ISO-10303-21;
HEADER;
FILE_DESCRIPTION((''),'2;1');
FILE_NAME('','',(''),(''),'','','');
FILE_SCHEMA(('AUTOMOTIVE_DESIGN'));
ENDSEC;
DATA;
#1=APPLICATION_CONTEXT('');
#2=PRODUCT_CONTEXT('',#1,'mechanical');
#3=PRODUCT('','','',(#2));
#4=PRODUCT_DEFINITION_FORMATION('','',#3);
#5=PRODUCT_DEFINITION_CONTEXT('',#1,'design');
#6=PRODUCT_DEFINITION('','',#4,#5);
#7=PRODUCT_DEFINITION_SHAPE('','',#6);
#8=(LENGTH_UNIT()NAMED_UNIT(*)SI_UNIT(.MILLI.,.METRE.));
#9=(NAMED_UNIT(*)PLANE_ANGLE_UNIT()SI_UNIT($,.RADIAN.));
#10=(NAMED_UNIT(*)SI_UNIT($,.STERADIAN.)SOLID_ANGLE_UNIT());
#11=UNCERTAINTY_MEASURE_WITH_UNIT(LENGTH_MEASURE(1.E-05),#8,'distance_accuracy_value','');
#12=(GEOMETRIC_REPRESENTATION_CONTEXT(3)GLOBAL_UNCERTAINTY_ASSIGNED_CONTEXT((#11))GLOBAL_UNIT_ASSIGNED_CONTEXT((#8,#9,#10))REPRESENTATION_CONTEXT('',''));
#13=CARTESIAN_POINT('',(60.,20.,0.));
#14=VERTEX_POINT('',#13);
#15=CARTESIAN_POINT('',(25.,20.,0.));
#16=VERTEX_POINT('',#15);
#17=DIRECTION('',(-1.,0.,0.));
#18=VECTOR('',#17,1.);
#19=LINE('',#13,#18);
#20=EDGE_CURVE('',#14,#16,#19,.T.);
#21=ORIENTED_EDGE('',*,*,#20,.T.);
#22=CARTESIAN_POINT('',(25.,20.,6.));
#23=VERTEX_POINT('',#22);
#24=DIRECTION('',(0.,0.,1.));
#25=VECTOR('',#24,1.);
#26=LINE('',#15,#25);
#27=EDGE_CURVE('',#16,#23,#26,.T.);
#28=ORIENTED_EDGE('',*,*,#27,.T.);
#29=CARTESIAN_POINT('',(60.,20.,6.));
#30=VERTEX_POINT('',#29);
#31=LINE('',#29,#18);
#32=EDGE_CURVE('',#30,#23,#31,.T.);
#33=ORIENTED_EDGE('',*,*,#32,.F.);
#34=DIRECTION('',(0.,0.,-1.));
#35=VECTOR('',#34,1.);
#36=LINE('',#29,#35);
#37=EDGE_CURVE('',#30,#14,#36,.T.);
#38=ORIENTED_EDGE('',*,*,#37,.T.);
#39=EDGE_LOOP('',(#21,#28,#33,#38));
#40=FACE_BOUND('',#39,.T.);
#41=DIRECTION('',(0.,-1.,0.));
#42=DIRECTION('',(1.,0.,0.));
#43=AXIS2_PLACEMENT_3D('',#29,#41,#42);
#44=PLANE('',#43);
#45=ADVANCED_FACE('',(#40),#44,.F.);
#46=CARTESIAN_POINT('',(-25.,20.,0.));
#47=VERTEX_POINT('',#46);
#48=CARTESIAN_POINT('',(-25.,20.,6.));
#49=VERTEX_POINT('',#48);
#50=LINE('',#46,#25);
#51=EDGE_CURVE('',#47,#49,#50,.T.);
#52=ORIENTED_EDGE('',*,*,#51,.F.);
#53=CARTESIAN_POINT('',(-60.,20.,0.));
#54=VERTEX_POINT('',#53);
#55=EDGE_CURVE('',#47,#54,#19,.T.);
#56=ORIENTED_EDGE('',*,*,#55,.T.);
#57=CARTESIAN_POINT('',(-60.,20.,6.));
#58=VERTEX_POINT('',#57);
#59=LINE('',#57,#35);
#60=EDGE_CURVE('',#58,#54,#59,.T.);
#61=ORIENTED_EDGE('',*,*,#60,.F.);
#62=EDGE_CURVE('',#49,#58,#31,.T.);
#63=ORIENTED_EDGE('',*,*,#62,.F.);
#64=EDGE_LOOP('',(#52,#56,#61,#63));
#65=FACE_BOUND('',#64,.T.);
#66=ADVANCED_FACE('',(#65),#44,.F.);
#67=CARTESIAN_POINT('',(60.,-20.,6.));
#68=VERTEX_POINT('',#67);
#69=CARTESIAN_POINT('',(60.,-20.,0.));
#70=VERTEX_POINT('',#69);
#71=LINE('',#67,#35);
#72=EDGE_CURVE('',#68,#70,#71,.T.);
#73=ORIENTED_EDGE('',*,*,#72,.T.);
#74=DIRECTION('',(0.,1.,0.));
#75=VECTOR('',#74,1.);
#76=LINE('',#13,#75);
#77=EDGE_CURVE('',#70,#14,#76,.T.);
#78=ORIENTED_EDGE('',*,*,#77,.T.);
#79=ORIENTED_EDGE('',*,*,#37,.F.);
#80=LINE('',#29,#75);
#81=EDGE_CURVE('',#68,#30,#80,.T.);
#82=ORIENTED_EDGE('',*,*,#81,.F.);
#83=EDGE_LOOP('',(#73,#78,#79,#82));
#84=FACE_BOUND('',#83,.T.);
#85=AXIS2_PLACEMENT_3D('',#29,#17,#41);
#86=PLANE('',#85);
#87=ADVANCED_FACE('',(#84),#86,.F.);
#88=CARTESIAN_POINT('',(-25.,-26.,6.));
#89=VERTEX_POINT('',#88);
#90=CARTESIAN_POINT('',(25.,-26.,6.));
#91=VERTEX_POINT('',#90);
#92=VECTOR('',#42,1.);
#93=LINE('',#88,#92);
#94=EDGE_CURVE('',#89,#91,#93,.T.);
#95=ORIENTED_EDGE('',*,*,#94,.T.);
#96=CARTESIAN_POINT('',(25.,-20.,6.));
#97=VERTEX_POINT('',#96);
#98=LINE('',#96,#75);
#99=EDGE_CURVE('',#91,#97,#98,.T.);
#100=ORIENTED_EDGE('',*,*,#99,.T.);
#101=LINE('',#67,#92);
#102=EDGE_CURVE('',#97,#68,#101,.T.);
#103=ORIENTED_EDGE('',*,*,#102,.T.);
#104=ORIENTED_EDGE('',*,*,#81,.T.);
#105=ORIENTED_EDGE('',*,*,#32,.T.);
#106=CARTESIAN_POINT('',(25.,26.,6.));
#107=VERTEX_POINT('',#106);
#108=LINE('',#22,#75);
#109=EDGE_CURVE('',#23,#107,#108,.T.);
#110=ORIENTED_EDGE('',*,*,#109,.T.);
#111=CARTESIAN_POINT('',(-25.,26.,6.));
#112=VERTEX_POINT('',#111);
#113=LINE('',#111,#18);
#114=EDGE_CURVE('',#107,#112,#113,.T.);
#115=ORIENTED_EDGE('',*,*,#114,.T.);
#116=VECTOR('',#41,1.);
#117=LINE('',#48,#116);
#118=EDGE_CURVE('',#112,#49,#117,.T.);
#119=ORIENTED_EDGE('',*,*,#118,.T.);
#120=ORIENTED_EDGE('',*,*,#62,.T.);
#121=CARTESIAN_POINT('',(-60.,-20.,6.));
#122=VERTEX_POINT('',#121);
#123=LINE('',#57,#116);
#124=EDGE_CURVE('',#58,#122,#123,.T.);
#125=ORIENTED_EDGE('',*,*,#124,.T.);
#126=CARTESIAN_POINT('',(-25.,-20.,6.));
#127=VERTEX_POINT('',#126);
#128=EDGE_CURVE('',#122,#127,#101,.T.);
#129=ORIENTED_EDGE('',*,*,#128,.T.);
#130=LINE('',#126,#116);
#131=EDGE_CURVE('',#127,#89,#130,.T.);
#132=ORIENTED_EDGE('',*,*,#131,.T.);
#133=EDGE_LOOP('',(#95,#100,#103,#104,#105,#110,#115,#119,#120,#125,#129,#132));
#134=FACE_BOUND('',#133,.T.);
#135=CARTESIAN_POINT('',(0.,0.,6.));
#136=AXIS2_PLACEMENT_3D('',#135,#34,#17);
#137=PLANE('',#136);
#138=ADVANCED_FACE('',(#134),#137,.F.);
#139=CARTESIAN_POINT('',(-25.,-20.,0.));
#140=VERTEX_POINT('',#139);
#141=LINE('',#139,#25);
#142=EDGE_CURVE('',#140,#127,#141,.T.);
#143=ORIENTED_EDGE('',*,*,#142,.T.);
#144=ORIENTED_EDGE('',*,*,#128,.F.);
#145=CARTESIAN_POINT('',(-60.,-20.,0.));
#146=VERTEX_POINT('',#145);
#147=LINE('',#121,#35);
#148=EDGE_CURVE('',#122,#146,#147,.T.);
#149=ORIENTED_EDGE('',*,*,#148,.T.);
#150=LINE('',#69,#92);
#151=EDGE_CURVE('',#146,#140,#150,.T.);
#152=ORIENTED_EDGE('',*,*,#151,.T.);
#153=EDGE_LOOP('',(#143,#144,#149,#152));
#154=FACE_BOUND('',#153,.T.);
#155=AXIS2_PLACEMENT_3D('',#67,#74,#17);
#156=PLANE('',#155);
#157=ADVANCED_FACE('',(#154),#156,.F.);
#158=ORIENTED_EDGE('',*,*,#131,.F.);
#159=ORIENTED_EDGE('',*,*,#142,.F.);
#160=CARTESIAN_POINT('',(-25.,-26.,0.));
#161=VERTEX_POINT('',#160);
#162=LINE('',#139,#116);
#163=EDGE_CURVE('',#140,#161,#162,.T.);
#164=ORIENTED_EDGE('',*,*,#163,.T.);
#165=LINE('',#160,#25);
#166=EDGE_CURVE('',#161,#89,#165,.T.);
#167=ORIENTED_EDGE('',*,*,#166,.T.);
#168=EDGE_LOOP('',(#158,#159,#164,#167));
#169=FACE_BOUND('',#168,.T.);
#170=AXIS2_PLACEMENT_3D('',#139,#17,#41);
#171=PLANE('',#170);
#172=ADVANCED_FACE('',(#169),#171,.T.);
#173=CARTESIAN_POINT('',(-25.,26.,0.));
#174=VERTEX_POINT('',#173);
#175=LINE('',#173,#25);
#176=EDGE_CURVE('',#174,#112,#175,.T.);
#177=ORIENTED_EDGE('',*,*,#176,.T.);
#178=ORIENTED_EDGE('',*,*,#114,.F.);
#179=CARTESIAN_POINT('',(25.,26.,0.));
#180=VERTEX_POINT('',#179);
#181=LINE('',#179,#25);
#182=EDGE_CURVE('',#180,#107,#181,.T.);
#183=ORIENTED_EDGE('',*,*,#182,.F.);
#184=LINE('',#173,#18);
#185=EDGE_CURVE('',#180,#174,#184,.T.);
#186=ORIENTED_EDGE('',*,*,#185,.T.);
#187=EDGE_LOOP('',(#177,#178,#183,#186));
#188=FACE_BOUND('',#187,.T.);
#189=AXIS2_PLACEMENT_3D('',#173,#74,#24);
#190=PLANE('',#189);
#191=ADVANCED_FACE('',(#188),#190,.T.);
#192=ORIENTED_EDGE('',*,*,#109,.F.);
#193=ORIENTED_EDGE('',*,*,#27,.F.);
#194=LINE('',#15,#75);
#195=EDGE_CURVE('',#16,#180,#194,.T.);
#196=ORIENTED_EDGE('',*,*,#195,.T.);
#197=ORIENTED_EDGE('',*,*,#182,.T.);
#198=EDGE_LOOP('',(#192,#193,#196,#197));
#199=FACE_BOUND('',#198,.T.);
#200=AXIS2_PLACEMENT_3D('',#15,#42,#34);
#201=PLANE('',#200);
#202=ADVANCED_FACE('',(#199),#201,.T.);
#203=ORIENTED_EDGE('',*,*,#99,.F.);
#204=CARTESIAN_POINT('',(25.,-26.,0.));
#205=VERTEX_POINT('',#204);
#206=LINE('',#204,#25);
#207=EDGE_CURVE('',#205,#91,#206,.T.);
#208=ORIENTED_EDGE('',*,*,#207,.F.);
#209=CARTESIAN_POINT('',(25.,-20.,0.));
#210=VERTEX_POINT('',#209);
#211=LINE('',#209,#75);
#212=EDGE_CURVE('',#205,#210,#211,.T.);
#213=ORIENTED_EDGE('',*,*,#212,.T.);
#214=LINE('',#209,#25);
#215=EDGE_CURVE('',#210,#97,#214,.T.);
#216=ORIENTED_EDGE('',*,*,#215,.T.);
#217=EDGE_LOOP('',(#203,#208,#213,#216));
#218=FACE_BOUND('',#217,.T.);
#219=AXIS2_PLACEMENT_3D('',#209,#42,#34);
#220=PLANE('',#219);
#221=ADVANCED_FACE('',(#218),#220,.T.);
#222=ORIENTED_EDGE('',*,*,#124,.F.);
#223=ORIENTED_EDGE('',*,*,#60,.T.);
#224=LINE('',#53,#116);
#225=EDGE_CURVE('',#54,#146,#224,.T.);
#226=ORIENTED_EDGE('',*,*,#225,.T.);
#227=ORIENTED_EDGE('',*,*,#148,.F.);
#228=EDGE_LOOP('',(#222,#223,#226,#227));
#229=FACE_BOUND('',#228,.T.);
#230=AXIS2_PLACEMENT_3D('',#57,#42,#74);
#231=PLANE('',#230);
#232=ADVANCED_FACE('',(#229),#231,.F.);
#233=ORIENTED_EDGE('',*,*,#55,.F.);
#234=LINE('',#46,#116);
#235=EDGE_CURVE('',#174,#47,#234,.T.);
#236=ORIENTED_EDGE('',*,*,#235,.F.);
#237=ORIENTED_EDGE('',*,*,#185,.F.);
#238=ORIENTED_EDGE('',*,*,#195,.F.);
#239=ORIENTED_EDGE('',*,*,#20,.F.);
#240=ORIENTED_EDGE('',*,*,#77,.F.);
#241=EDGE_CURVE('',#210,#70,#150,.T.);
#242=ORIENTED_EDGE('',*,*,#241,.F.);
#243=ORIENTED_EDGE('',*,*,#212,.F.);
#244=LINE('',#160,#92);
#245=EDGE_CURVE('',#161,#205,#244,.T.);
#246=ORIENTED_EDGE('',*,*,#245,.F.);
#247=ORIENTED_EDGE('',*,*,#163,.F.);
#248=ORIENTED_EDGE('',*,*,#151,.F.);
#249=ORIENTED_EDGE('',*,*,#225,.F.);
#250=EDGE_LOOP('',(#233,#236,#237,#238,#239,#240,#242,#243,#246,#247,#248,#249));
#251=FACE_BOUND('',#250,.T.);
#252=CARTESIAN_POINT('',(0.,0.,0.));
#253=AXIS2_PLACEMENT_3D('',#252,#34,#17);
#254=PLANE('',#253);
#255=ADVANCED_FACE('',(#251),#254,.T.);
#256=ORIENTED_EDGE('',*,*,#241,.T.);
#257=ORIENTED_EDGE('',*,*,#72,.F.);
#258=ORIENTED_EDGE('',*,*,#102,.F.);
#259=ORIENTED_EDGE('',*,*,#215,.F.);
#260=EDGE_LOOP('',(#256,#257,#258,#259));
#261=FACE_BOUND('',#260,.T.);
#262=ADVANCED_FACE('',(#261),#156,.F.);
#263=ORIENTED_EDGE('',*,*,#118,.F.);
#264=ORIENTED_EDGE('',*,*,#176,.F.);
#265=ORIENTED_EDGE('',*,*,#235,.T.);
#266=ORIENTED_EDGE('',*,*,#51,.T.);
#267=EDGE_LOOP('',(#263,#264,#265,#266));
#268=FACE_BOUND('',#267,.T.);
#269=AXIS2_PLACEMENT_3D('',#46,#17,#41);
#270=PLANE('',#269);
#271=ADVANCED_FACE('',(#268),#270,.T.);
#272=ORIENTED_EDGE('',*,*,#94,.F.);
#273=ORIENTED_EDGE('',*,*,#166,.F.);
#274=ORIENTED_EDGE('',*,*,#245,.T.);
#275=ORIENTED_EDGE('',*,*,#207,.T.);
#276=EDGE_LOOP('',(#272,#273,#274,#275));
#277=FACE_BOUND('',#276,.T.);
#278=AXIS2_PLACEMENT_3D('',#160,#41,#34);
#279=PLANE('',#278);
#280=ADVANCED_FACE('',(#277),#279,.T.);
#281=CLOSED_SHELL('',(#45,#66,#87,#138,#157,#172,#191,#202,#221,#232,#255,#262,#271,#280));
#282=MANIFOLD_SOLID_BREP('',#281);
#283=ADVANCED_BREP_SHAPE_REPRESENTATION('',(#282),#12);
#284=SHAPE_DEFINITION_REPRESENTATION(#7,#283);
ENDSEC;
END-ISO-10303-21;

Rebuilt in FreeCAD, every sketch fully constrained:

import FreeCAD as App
import Part
import Sketcher
Q = App.Units.Quantity


def add_polygon(sketch, points):
    """Adds a closed chain of lines whose ends are joined by coincident constraints."""
    first, n = sketch.GeometryCount, len(points)
    for a, b in zip(points, points[1:] + points[:1]):
        sketch.addGeometry(Part.LineSegment(App.Vector(*a, 0), App.Vector(*b, 0)), False)
    for i in range(n):
        sketch.addConstraint(Sketcher.Constraint("Coincident", first + i, 2, first + (i + 1) % n, 1))

doc = App.newDocument("Part")
body = doc.addObject("PartDesign::Body", "Body")

# Sketch on XY plane
sketch1 = doc.addObject("Sketcher::SketchObject", "Sketch")
body.addObject(sketch1)
sketch1.AttachmentSupport = (doc.XY_Plane, [""])
sketch1.MapMode = "FlatFace"
add_polygon(sketch1, [(-60, 20), (-60, -20), (60, -20), (60, 20)])  # lines 0-3
sketch1.addConstraint([
    Sketcher.Constraint("Vertical", 0),
    Sketcher.Constraint("Horizontal", 1),
    Sketcher.Constraint("Vertical", 2),
    Sketcher.Constraint("Horizontal", 3),
    Sketcher.Constraint("Symmetric", 0, 2, 2, 2, -1, 1),
    Sketcher.Constraint("DistanceX", 1, 1, 1, 2, Q("120 mm")),
    Sketcher.Constraint("DistanceY", 0, 2, 0, 1, Q("40 mm")),
])
pad1 = doc.addObject("PartDesign::Pad", "Pad")
body.addObject(pad1)
pad1.Profile = sketch1
pad1.Length = 6

# Sketch on XY plane
sketch2 = doc.addObject("Sketcher::SketchObject", "Sketch001")
body.addObject(sketch2)
sketch2.AttachmentSupport = (doc.XY_Plane, [""])
sketch2.MapMode = "FlatFace"
sketch2.AttachmentOffset = App.Placement(App.Vector(0, 0, 6), App.Rotation())
add_polygon(sketch2, [(-25, 26), (-25, 20), (25, 20), (25, 26)])  # lines 0-3
add_polygon(sketch2, [(-25, -20), (-25, -26), (25, -26), (25, -20)])  # lines 4-7
sketch2.addConstraint([
    Sketcher.Constraint("Vertical", 0),
    Sketcher.Constraint("Horizontal", 1),
    Sketcher.Constraint("Vertical", 2),
    Sketcher.Constraint("Horizontal", 3),
    Sketcher.Constraint("Vertical", 4),
    Sketcher.Constraint("Horizontal", 5),
    Sketcher.Constraint("Vertical", 6),
    Sketcher.Constraint("Horizontal", 7),
    Sketcher.Constraint("Symmetric", 2, 2, 4, 2, -1, 1),
    Sketcher.Constraint("Symmetric", 0, 2, 6, 2, -1, 1),
    Sketcher.Constraint("Vertical", 3, 2, 4, 2),
    Sketcher.Constraint("DistanceX", 1, 1, 1, 2, Q("50 mm")),
    Sketcher.Constraint("DistanceY", 0, 2, 0, 1, Q("6 mm")),
    Sketcher.Constraint("DistanceY", -1, 1, 0, 2, Q("20 mm")),
])
pad2 = doc.addObject("PartDesign::Pad", "Pad001")
body.addObject(pad2)
pad2.Profile = sketch2
pad2.Length = 6
pad2.Reversed = True

doc.recompute()
